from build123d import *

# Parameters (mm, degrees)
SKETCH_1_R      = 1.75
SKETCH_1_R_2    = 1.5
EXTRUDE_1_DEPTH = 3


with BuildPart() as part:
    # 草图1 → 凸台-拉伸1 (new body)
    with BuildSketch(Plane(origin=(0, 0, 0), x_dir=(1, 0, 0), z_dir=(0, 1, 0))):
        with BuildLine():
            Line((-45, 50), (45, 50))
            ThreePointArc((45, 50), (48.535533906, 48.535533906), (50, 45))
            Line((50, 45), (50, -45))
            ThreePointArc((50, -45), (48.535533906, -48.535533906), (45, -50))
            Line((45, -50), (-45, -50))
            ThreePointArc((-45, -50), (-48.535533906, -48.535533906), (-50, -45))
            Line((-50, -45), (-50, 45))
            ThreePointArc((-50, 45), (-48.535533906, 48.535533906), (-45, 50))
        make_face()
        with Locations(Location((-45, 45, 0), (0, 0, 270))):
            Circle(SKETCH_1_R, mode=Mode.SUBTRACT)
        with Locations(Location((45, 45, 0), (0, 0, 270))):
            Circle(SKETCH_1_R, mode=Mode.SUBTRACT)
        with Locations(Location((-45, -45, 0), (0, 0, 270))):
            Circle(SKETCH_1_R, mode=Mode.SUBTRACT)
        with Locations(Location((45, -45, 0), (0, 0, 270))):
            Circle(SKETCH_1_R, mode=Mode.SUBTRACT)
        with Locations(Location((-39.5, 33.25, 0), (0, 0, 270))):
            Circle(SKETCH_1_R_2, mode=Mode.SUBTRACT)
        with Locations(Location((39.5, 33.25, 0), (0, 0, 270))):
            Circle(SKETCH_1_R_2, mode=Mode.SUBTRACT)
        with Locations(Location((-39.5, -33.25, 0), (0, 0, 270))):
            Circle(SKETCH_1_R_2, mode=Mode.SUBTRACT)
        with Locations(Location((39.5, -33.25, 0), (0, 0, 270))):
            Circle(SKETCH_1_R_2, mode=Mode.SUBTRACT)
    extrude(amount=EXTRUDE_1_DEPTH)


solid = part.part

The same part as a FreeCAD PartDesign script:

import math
import FreeCAD as App
import Part
import Sketcher

V = App.Vector
Q = App.Units.Quantity

doc = App.newDocument("Part")
body = doc.addObject("PartDesign::Body", "Body")

# Sketch on XZ plane
sketch1 = body.newObject("Sketcher::SketchObject", "Sketch")
sketch1.AttachmentSupport = (doc.getObject("XZ_Plane"), [""])
sketch1.MapMode = "FlatFace"
sketch1.addGeometry(Part.LineSegment(V(45, -50, 0), V(-45, -50, 0)), False)
sketch1.addGeometry(Part.ArcOfCircle(Part.Circle(V(-45, -45, 0), V(0, 0, 1), 5), math.radians(180), math.radians(270)), False)
sketch1.addGeometry(Part.LineSegment(V(-50, -45, 0), V(-50, 45, 0)), False)
sketch1.addGeometry(Part.ArcOfCircle(Part.Circle(V(-45, 45, 0), V(0, 0, 1), 5), math.radians(90), math.radians(180)), False)
sketch1.addGeometry(Part.LineSegment(V(-45, 50, 0), V(45, 50, 0)), False)
sketch1.addGeometry(Part.ArcOfCircle(Part.Circle(V(45, 45, 0), V(0, 0, 1), 5), math.radians(0), math.radians(90)), False)
sketch1.addGeometry(Part.LineSegment(V(50, 45, 0), V(50, -45, 0)), False)
sketch1.addGeometry(Part.ArcOfCircle(Part.Circle(V(45, -45, 0), V(0, 0, 1), 5), math.radians(-90), math.radians(0)), False)
sketch1.addGeometry(Part.Circle(V(45, 45, 0), V(0, 0, 1), 1.75), False)
sketch1.addGeometry(Part.Circle(V(39.5, 33.25, 0), V(0, 0, 1), 1.5), False)
sketch1.addGeometry(Part.Circle(V(-45, 45, 0), V(0, 0, 1), 1.75), False)
sketch1.addGeometry(Part.Circle(V(-39.5, 33.25, 0), V(0, 0, 1), 1.5), False)
sketch1.addGeometry(Part.Circle(V(39.5, -33.25, 0), V(0, 0, 1), 1.5), False)
sketch1.addGeometry(Part.Circle(V(45, -45, 0), V(0, 0, 1), 1.75), False)
sketch1.addGeometry(Part.Circle(V(-39.5, -33.25, 0), V(0, 0, 1), 1.5), False)
sketch1.addGeometry(Part.Circle(V(-45, -45, 0), V(0, 0, 1), 1.75), False)
sketch1.addConstraint(Sketcher.Constraint("Tangent", 0, 2, 1, 2))
sketch1.addConstraint(Sketcher.Constraint("Tangent", 1, 1, 2, 1))
sketch1.addConstraint(Sketcher.Constraint("Tangent", 2, 2, 3, 2))
sketch1.addConstraint(Sketcher.Constraint("Tangent", 3, 1, 4, 1))
sketch1.addConstraint(Sketcher.Constraint("Tangent", 4, 2, 5, 2))
sketch1.addConstraint(Sketcher.Constraint("Tangent", 5, 1, 6, 1))
sketch1.addConstraint(Sketcher.Constraint("Tangent", 6, 2, 7, 2))
sketch1.addConstraint(Sketcher.Constraint("Tangent", 7, 1, 0, 1))
sketch1.addConstraint(Sketcher.Constraint("Horizontal", 0))
sketch1.addConstraint(Sketcher.Constraint("Vertical", 2))
sketch1.addConstraint(Sketcher.Constraint("Horizontal", 4))
sketch1.addConstraint(Sketcher.Constraint("Vertical", 6))
sketch1.addConstraint(Sketcher.Constraint("Coincident", 8, 3, 5, 3))
sketch1.addConstraint(Sketcher.Constraint("Coincident", 10, 3, 3, 3))
sketch1.addConstraint(Sketcher.Constraint("Coincident", 13, 3, 7, 3))
sketch1.addConstraint(Sketcher.Constraint("Coincident", 15, 3, 1, 3))
sketch1.addConstraint(Sketcher.Constraint("Equal", 1, 3))
sketch1.addConstraint(Sketcher.Constraint("Equal", 3, 5))
sketch1.addConstraint(Sketcher.Constraint("Equal", 5, 7))
sketch1.addConstraint(Sketcher.Constraint("Equal", 8, 10))
sketch1.addConstraint(Sketcher.Constraint("Equal", 9, 11))
sketch1.addConstraint(Sketcher.Constraint("Equal", 11, 12))
sketch1.addConstraint(Sketcher.Constraint("Equal", 10, 13))
sketch1.addConstraint(Sketcher.Constraint("Equal", 12, 14))
sketch1.addConstraint(Sketcher.Constraint("Equal", 13, 15))
sketch1.addConstraint(Sketcher.Constraint("Symmetric", 1, 3, 5, 3, -1, 1))
sketch1.addConstraint(Sketcher.Constraint("Symmetric", 11, 3, 12, 3, -1, 1))
sketch1.addConstraint(Sketcher.Constraint("Symmetric", 9, 3, 14, 3, -1, 1))
sketch1.addConstraint(Sketcher.Constraint("Symmetric", 9, 3, 11, 3, -2))
sketch1.addConstraint(Sketcher.Constraint("Equal", 4, 2))
sketch1.addConstraint(Sketcher.Constraint("Diameter", 9, Q("3 mm")))
sketch1.addConstraint(Sketcher.Constraint("Radius", 1, Q("5 mm")))
sketch1.addConstraint(Sketcher.Constraint("Diameter", 8, Q("3.5 mm")))
sketch1.addConstraint(Sketcher.Constraint("DistanceX", 0, 2, 0, 1, Q("90 mm")))
sketch1.addConstraint(Sketcher.Constraint("DistanceX", 11, 3, 9, 3, Q("79 mm")))
sketch1.addConstraint(Sketcher.Constraint("DistanceY", 12, 3, 9, 3, Q("66.5 mm")))
pad1 = body.newObject("PartDesign::Pad", "Pad")
pad1.Profile = sketch1
pad1.Length = 3
pad1.Reversed = True

doc.recompute()
